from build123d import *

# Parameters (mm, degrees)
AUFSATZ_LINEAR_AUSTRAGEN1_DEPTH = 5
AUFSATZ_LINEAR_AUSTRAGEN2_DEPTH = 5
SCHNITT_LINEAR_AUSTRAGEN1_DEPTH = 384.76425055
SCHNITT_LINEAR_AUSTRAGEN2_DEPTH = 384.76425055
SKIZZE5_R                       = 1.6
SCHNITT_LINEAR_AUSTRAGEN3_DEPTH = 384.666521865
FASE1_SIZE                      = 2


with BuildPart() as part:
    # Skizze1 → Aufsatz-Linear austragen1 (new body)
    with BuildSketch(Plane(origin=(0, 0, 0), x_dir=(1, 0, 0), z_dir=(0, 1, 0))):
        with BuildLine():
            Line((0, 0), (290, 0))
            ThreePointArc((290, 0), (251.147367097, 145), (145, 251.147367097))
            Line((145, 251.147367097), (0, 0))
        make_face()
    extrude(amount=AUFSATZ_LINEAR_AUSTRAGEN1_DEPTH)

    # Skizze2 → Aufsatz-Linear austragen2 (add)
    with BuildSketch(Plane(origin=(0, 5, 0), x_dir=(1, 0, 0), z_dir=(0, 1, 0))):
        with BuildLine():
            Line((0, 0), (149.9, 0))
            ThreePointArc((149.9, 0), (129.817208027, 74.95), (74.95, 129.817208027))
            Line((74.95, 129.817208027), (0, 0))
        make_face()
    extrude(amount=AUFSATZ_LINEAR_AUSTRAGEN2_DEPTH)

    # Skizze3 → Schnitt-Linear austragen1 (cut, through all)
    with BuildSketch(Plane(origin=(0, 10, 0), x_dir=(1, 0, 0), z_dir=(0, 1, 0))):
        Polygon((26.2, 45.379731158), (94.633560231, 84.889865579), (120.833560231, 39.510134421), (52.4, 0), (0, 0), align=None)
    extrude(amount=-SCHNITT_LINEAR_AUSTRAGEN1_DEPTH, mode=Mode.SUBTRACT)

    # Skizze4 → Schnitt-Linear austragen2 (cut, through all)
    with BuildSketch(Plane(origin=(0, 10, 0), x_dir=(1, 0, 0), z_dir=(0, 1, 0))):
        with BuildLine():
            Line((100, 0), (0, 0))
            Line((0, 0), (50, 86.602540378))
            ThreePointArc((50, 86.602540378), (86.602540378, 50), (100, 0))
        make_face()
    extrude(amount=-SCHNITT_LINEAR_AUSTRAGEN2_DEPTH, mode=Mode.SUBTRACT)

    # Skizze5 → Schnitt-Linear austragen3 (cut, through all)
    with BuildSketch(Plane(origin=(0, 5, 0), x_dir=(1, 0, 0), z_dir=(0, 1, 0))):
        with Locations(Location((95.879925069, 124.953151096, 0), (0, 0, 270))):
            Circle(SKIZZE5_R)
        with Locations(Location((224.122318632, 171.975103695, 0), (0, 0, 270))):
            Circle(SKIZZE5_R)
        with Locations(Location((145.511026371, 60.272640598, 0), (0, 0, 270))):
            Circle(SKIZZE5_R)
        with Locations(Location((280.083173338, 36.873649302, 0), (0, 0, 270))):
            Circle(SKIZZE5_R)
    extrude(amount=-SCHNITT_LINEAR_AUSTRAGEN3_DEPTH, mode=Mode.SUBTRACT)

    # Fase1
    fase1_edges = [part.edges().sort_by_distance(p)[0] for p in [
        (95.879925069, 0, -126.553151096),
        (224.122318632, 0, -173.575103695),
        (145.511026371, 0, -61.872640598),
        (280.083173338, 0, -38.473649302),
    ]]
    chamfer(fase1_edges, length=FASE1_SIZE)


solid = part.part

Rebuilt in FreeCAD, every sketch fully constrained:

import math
import FreeCAD as App
import Part
import Sketcher

V = App.Vector
Q = App.Units.Quantity


def edges_at(feature, points):
    """Names of the edges that pass closest to the given points."""
    edges = feature.Shape.Edges
    near = lambda p: min(range(len(edges)), key=lambda i: edges[i].distToShape(Part.Vertex(*p))[0])
    return sorted({f"Edge{near(p) + 1}" for p in points})


def add_polygon(sketch, points):
    """Adds a closed chain of lines whose ends are joined by coincident constraints."""
    first, n = sketch.GeometryCount, len(points)
    for a, b in zip(points, points[1:] + points[:1]):
        sketch.addGeometry(Part.LineSegment(App.Vector(*a, 0), App.Vector(*b, 0)), False)
    for i in range(n):
        sketch.addConstraint(Sketcher.Constraint("Coincident", first + i, 2, first + (i + 1) % n, 1))

doc = App.newDocument("Part")
body = doc.addObject("PartDesign::Body", "Body")

sketch1 = body.newObject("Sketcher::SketchObject", "Sketch")
sketch1.AttachmentSupport = (doc.getObject("XZ_Plane"), [""])
sketch1.MapMode = "FlatFace"
sketch1.addGeometry(Part.LineSegment(V(0, 0, 0), V(290, 0, 0)), False)
sketch1.addGeometry(Part.ArcOfCircle(Part.Circle(V(0, 0, 0), V(0, 0, 1), 290), math.radians(-60), math.radians(0)), False)
sketch1.addGeometry(Part.LineSegment(V(145, -251, 0), V(0, 0, 0)), False)
sketch1.addConstraint(Sketcher.Constraint("Coincident", 0, 2, 1, 2))
sketch1.addConstraint(Sketcher.Constraint("Coincident", 1, 1, 2, 1))
sketch1.addConstraint(Sketcher.Constraint("Coincident", 2, 2, 0, 1))
sketch1.addConstraint(Sketcher.Constraint("Horizontal", 0))
sketch1.addConstraint(Sketcher.Constraint("Coincident", 1, 3, -1, 1))
sketch1.addConstraint(Sketcher.Constraint("Coincident", 2, 2, -1, 1))
sketch1.addConstraint(Sketcher.Constraint("Radius", 1, 290.0))
sketch1.addConstraint(Sketcher.Constraint("Angle", 2, Q("120 deg")))
pad1 = body.newObject("PartDesign::Pad", "Pad")
pad1.Profile = sketch1
pad1.Length = 5
pad1.Reversed = True

sketch2 = body.newObject("Sketcher::SketchObject", "Sketch001")
sketch2.AttachmentSupport = (doc.getObject("XZ_Plane"), [""])
sketch2.MapMode = "FlatFace"
sketch2.AttachmentOffset = App.Placement(V(0, 0, -5), App.Rotation())
sketch2.addGeometry(Part.LineSegment(V(0, 0, 0), V(150, 0, 0)), False)
sketch2.addGeometry(Part.ArcOfCircle(Part.Circle(V(0, 0, 0), V(0, 0, 1), 150), math.radians(-60), math.radians(0)), False)
sketch2.addGeometry(Part.LineSegment(V(75, -130, 0), V(0, 0, 0)), False)
sketch2.addConstraint(Sketcher.Constraint("Coincident", 0, 2, 1, 2))
sketch2.addConstraint(Sketcher.Constraint("Coincident", 1, 1, 2, 1))
sketch2.addConstraint(Sketcher.Constraint("Coincident", 2, 2, 0, 1))
sketch2.addConstraint(Sketcher.Constraint("Horizontal", 0))
sketch2.addConstraint(Sketcher.Constraint("Coincident", 1, 3, -1, 1))
sketch2.addConstraint(Sketcher.Constraint("Coincident", 2, 2, -1, 1))
sketch2.addConstraint(Sketcher.Constraint("Radius", 1, 149.9))
sketch2.addConstraint(Sketcher.Constraint("Angle", 2, Q("120 deg")))
pad2 = body.newObject("PartDesign::Pad", "Pad001")
pad2.Profile = sketch2
pad2.Length = 5
pad2.Reversed = True

sketch3 = body.newObject("Sketcher::SketchObject", "Sketch002")
sketch3.AttachmentSupport = (doc.getObject("XZ_Plane"), [""])
sketch3.MapMode = "FlatFace"
sketch3.AttachmentOffset = App.Placement(V(0, 0, -10), App.Rotation())
add_polygon(sketch3, [(95, -85), (26, -45), (0, 0), (52, 0), (121, -40)])
sketch3.addConstraint(Sketcher.Constraint("Horizontal", 2))
sketch3.addConstraint(Sketcher.Constraint("Coincident", 1, 2, -1, 1))
sketch3.addConstraint(Sketcher.Constraint("Parallel", 0, 3))
sketch3.addConstraint(Sketcher.Constraint("Perpendicular", 3, 4))
sketch3.addConstraint(Sketcher.Constraint("Equal", 0, 3))
sketch3.addConstraint(Sketcher.Constraint("Equal", 1, 4))
sketch3.addConstraint(Sketcher.Constraint("Angle", 0, Q("150 deg")))
sketch3.addConstraint(Sketcher.Constraint("DistanceX", 2, 1, 2, 2, 52.4))
sketch3.addConstraint(Sketcher.Constraint("Distance", 0, 79.020269))
pocket1 = body.newObject("PartDesign::Pocket", "Pocket")
pocket1.Profile = sketch3
pocket1.Type = "ThroughAll"
pocket1.Reversed = True

sketch4 = body.newObject("Sketcher::SketchObject", "Sketch003")
sketch4.AttachmentSupport = (doc.getObject("XZ_Plane"), [""])
sketch4.MapMode = "FlatFace"
sketch4.AttachmentOffset = App.Placement(V(0, 0, -10), App.Rotation())
sketch4.addGeometry(Part.LineSegment(V(0, 0, 0), V(100, 0, 0)), False)
sketch4.addGeometry(Part.ArcOfCircle(Part.Circle(V(0, 0, 0), V(0, 0, 1), 100), math.radians(-60), math.radians(0)), False)
sketch4.addGeometry(Part.LineSegment(V(50, -87, 0), V(0, 0, 0)), False)
sketch4.addConstraint(Sketcher.Constraint("Coincident", 0, 2, 1, 2))
sketch4.addConstraint(Sketcher.Constraint("Coincident", 1, 1, 2, 1))
sketch4.addConstraint(Sketcher.Constraint("Coincident", 2, 2, 0, 1))
sketch4.addConstraint(Sketcher.Constraint("Horizontal", 0))
sketch4.addConstraint(Sketcher.Constraint("Coincident", 1, 3, -1, 1))
sketch4.addConstraint(Sketcher.Constraint("Coincident", 2, 2, -1, 1))
sketch4.addConstraint(Sketcher.Constraint("Radius", 1, 100.0))
sketch4.addConstraint(Sketcher.Constraint("Angle", 2, Q("120 deg")))
pocket2 = body.newObject("PartDesign::Pocket", "Pocket001")
pocket2.Profile = sketch4
pocket2.Type = "ThroughAll"
pocket2.Reversed = True

sketch5 = body.newObject("Sketcher::SketchObject", "Sketch004")
sketch5.AttachmentSupport = (doc.getObject("XZ_Plane"), [""])
sketch5.MapMode = "FlatFace"
sketch5.AttachmentOffset = App.Placement(V(0, 0, -5), App.Rotation())
sketch5.addGeometry(Part.Circle(V(95.9, -125, 0), V(0, 0, 1), 1.6), False)
sketch5.addGeometry(Part.Circle(V(224.1, -172, 0), V(0, 0, 1), 1.6), False)
sketch5.addGeometry(Part.Circle(V(145.5, -60.3, 0), V(0, 0, 1), 1.6), False)
sketch5.addGeometry(Part.Circle(V(280.1, -36.9, 0), V(0, 0, 1), 1.6), False)
sketch5.addConstraint(Sketcher.Constraint("Equal", 0, 1))
sketch5.addConstraint(Sketcher.Constraint("Equal", 1, 2))
sketch5.addConstraint(Sketcher.Constraint("Equal", 2, 3))
sketch5.addConstraint(Sketcher.Constraint("Diameter", 0, 3.2))
sketch5.addConstraint(Sketcher.Constraint("DistanceX", 0, 3, 2, 3, 49.631101))
sketch5.addConstraint(Sketcher.Constraint("DistanceY", 0, 3, 3, 3, 88.079502))
sketch5.addConstraint(Sketcher.Constraint("DistanceY", 0, 3, -1, 1, 124.953151))
sketch5.addConstraint(Sketcher.Constraint("DistanceX", -1, 1, 1, 3, 224.122319))
sketch5.addConstraint(Sketcher.Constraint("DistanceY", 2, 3, -1, 1, 60.272641))
sketch5.addConstraint(Sketcher.Constraint("DistanceX", 0, 3, 3, 3, 184.203248))
sketch5.addConstraint(Sketcher.Constraint("DistanceX", -1, 1, 0, 3, 95.879925))
sketch5.addConstraint(Sketcher.Constraint("DistanceY", 1, 3, -1, 1, 171.975104))
pocket3 = body.newObject("PartDesign::Pocket", "Pocket002")
pocket3.Profile = sketch5
pocket3.Type = "ThroughAll"
pocket3.Reversed = True
doc.recompute()

chamfer = body.newObject("PartDesign::Chamfer", "Chamfer")
chamfer.Base = (pocket3, edges_at(pocket3, [
    (95.88, 0, -126.553),
    (224.122, 0, -173.575),
    (145.511, 0, -61.873),
    (280.083, 0, -38.474),
]))
chamfer.Size = 2

doc.recompute()
